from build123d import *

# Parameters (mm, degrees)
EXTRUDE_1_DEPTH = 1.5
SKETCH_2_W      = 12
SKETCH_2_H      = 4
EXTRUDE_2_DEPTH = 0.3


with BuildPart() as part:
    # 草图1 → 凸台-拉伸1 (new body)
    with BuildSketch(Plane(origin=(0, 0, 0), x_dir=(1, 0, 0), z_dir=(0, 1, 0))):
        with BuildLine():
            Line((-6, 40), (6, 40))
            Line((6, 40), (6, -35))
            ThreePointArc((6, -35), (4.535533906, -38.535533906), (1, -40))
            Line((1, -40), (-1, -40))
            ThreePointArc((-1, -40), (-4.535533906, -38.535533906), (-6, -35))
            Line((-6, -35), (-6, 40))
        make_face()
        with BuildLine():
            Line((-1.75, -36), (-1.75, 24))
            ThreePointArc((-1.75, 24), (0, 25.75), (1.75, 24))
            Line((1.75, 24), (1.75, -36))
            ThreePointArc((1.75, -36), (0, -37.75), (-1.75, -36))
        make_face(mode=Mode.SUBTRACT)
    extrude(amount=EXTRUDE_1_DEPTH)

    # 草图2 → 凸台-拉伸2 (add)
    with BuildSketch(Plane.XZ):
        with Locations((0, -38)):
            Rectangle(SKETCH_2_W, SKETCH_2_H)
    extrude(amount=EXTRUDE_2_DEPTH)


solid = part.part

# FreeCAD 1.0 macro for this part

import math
import FreeCAD as App
import Part
import Sketcher
Q = App.Units.Quantity

doc = App.newDocument("Part")
body = doc.addObject("PartDesign::Body", "Body")

# Sketch on XZ plane
sketch1 = body.newObject("Sketcher::SketchObject", "Sketch")
sketch1.AttachmentSupport = (doc.getObject("XZ_Plane"), [""])
sketch1.MapMode = "FlatFace"
sketch1.addGeometry([
    Part.LineSegment(App.Vector(6, -40, 0), App.Vector(-6, -40, 0)),  # 0
    Part.LineSegment(App.Vector(-6, -40, 0), App.Vector(-6, 35, 0)),  # 1
    Part.ArcOfCircle(Part.Circle(App.Vector(-1, 35, 0), App.Vector(0, 0, 1), 5), math.radians(90), math.radians(180)),  # 2
    Part.LineSegment(App.Vector(-1, 40, 0), App.Vector(1, 40, 0)),  # 3
    Part.ArcOfCircle(Part.Circle(App.Vector(1, 35, 0), App.Vector(0, 0, 1), 5), math.radians(0), math.radians(90)),  # 4
    Part.LineSegment(App.Vector(6, 35, 0), App.Vector(6, -40, 0)),  # 5
    Part.LineSegment(App.Vector(-1.8, 36, 0), App.Vector(-1.8, -24, 0)),  # 6
    Part.ArcOfCircle(Part.Circle(App.Vector(0, -24, 0), App.Vector(0, 0, 1), 1.8), math.radians(180), math.radians(360)),  # 7
    Part.LineSegment(App.Vector(1.8, -24, 0), App.Vector(1.8, 36, 0)),  # 8
    Part.ArcOfCircle(Part.Circle(App.Vector(0, 36, 0), App.Vector(0, 0, 1), 1.8), math.radians(0), math.radians(180)),  # 9
], False)
sketch1.addConstraint([
    Sketcher.Constraint("Coincident", 0, 2, 1, 1),
    Sketcher.Constraint("Tangent", 1, 2, 2, 2),
    Sketcher.Constraint("Tangent", 2, 1, 3, 1),
    Sketcher.Constraint("Tangent", 3, 2, 4, 2),
    Sketcher.Constraint("Tangent", 4, 1, 5, 1),
    Sketcher.Constraint("Coincident", 5, 2, 0, 1),
    Sketcher.Constraint("Tangent", 6, 2, 7, 1),
    Sketcher.Constraint("Tangent", 7, 2, 8, 1),
    Sketcher.Constraint("Tangent", 8, 2, 9, 1),
    Sketcher.Constraint("Tangent", 9, 2, 6, 1),
    Sketcher.Constraint("Horizontal", 0),
    Sketcher.Constraint("Vertical", 1),
    Sketcher.Constraint("Horizontal", 3),
    Sketcher.Constraint("Vertical", 5),
    Sketcher.Constraint("Vertical", 6),
    Sketcher.Constraint("Vertical", 8),
    Sketcher.Constraint("Equal", 2, 4),
    Sketcher.Constraint("PointOnObject", 7, 3, -2),
    Sketcher.Constraint("Radius", 2, Q("5 mm")),
    Sketcher.Constraint("DistanceX", 0, 2, 0, 1, Q("12 mm")),
    Sketcher.Constraint("DistanceY", 1, 1, 1, 2, Q("75 mm")),
    Sketcher.Constraint("DistanceY", 6, 2, 6, 1, Q("60 mm")),
    Sketcher.Constraint("Radius", 7, Q("1.75 mm")),
    Sketcher.Constraint("DistanceX", 2, 3, -1, 1, Q("1 mm")),
    Sketcher.Constraint("DistanceY", -1, 1, 2, 3, Q("35 mm")),
    Sketcher.Constraint("DistanceY", 7, 3, -1, 1, Q("24 mm")),
])
pad1 = body.newObject("PartDesign::Pad", "Pad")
pad1.Profile = sketch1
pad1.Length = 1.5
pad1.Reversed = True

# Sketch on XZ plane
sketch2 = body.newObject("Sketcher::SketchObject", "Sketch001")
sketch2.AttachmentSupport = (doc.getObject("XZ_Plane"), [""])
sketch2.MapMode = "FlatFace"
sketch2.addGeometry([
    Part.LineSegment(App.Vector(-6, -36, 0), App.Vector(-6, -40, 0)),
    Part.LineSegment(App.Vector(-6, -40, 0), App.Vector(6, -40, 0)),
    Part.LineSegment(App.Vector(6, -40, 0), App.Vector(6, -36, 0)),
    Part.LineSegment(App.Vector(6, -36, 0), App.Vector(-6, -36, 0)),
], False)
sketch2.addConstraint([
    Sketcher.Constraint("Coincident", 0, 2, 1, 1),
    Sketcher.Constraint("Coincident", 1, 2, 2, 1),
    Sketcher.Constraint("Coincident", 2, 2, 3, 1),
    Sketcher.Constraint("Coincident", 3, 2, 0, 1),
    Sketcher.Constraint("Vertical", 0),
    Sketcher.Constraint("Horizontal", 1),
    Sketcher.Constraint("Vertical", 2),
    Sketcher.Constraint("Horizontal", 3),
    Sketcher.Constraint("DistanceX", 1, 1, 1, 2, Q("12 mm")),
    Sketcher.Constraint("DistanceY", 0, 2, 0, 1, Q("4 mm")),
    Sketcher.Constraint("DistanceX", 0, 2, -1, 1, Q("6 mm")),
    Sketcher.Constraint("DistanceY", 0, 2, -1, 1, Q("40 mm")),
])
pad2 = body.newObject("PartDesign::Pad", "Pad001")
pad2.Profile = sketch2
pad2.Length = 0.3

doc.recompute()
